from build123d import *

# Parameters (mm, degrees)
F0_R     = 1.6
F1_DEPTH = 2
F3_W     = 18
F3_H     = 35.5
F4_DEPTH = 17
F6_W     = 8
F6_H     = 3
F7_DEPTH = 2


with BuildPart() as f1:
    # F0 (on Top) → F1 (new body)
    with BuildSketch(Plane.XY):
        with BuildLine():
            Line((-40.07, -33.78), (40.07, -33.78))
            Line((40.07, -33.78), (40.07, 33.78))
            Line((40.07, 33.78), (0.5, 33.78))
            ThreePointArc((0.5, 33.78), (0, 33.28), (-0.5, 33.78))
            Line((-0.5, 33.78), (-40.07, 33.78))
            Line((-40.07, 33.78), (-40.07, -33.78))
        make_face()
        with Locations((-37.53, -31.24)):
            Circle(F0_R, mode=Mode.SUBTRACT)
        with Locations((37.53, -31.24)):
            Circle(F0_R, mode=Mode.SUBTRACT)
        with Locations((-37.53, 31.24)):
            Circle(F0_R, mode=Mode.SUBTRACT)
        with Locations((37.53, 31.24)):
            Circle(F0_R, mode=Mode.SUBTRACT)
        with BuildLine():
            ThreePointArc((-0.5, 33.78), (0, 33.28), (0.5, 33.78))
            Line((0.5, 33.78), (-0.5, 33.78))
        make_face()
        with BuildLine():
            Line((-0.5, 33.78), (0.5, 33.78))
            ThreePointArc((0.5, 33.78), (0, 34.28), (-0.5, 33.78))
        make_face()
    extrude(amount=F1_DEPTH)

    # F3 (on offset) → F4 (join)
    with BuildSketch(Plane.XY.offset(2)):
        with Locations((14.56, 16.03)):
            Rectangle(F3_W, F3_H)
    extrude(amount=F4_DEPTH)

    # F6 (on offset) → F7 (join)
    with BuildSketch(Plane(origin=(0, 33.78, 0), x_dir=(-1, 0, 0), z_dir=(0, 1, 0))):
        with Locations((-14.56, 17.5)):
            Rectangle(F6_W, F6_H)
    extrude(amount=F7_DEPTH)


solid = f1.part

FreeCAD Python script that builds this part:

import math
import FreeCAD as App
import Part
import Sketcher
from FreeCAD import Vector
Q = App.Units.Quantity


def add_polygon(sketch, points):
    """Adds a closed chain of lines whose ends are joined by coincident constraints."""
    first, n = sketch.GeometryCount, len(points)
    for a, b in zip(points, points[1:] + points[:1]):
        sketch.addGeometry(Part.LineSegment(App.Vector(*a, 0), App.Vector(*b, 0)), False)
    for i in range(n):
        sketch.addConstraint(Sketcher.Constraint("Coincident", first + i, 2, first + (i + 1) % n, 1))

doc = App.newDocument("Part")
body = doc.addObject("PartDesign::Body", "Body")

sketch1 = body.newObject("Sketcher::SketchObject", "Sketch")
sketch1.AttachmentSupport = (doc.getObject("XY_Plane"), [""])
sketch1.MapMode = "FlatFace"
sketch1.addGeometry([
    Part.LineSegment(Vector(-40.1, -33.8, 0), Vector(40.1, -33.8, 0)),
    Part.LineSegment(Vector(40.1, -33.8, 0), Vector(40.1, 33.8, 0)),
    Part.LineSegment(Vector(40.1, 33.8, 0), Vector(0.5, 33.8, 0)),
    Part.ArcOfCircle(Part.Circle(Vector(0, 33.8, 0), Vector(0, 0, 1), 0.5), math.radians(0), math.radians(180)),
    Part.LineSegment(Vector(-0.5, 33.8, 0), Vector(-40.1, 33.8, 0)),
    Part.LineSegment(Vector(-40.1, 33.8, 0), Vector(-40.1, -33.8, 0)),
    Part.Circle(Vector(-37.5, -31.2, 0), Vector(0, 0, 1), 1.6),
    Part.Circle(Vector(37.5, -31.2, 0), Vector(0, 0, 1), 1.6),
    Part.Circle(Vector(-37.5, 31.2, 0), Vector(0, 0, 1), 1.6),
    Part.Circle(Vector(37.5, 31.2, 0), Vector(0, 0, 1), 1.6),
], False)
sketch1.addConstraint([
    Sketcher.Constraint("Coincident", 0, 2, 1, 1),
    Sketcher.Constraint("Coincident", 1, 2, 2, 1),
    Sketcher.Constraint("Coincident", 2, 2, 3, 1),
    Sketcher.Constraint("Coincident", 3, 2, 4, 1),
    Sketcher.Constraint("Coincident", 4, 2, 5, 1),
    Sketcher.Constraint("Coincident", 5, 2, 0, 1),
    Sketcher.Constraint("Horizontal", 0),
    Sketcher.Constraint("Vertical", 1),
    Sketcher.Constraint("Horizontal", 2),
    Sketcher.Constraint("Horizontal", 4),
    Sketcher.Constraint("Vertical", 5),
    Sketcher.Constraint("Equal", 6, 7),
    Sketcher.Constraint("Equal", 7, 8),
    Sketcher.Constraint("Equal", 8, 9),
    Sketcher.Constraint("Symmetric", 7, 3, 8, 3, -1, 1),
    Sketcher.Constraint("Symmetric", 6, 3, 9, 3, -1, 1),
    Sketcher.Constraint("Symmetric", 0, 2, 4, 2, -1, 1),
    Sketcher.Constraint("Symmetric", 6, 3, 7, 3, -2),
    Sketcher.Constraint("Symmetric", 2, 2, 3, 2, -2),
    Sketcher.Constraint("Horizontal", 3, 3, 1, 2),
    Sketcher.Constraint("Diameter", 6, Q("3.2 mm")),
    Sketcher.Constraint("Radius", 3, Q("0.5 mm")),
    Sketcher.Constraint("DistanceX", 0, 1, 0, 2, Q("80.14 mm")),
    Sketcher.Constraint("DistanceY", 1, 1, 1, 2, Q("67.56 mm")),
    Sketcher.Constraint("DistanceX", 6, 3, 0, 2, Q("77.6 mm")),
    Sketcher.Constraint("DistanceY", 6, 3, -1, 1, Q("31.24 mm")),
])
pad1 = body.newObject("PartDesign::Pad", "Pad")
pad1.Profile = sketch1
pad1.Length = 2

sketch2 = body.newObject("Sketcher::SketchObject", "Sketch001")
sketch2.AttachmentSupport = (doc.getObject("XY_Plane"), [""])
sketch2.MapMode = "FlatFace"
sketch2.AttachmentOffset = App.Placement(Vector(0, 0, 2), App.Rotation())
add_polygon(sketch2, [(6, 34), (6, -2), (24, -2), (24, 34)])
sketch2.addConstraint([
    Sketcher.Constraint("Vertical", 0),
    Sketcher.Constraint("Horizontal", 1),
    Sketcher.Constraint("Vertical", 2),
    Sketcher.Constraint("Horizontal", 3),
    Sketcher.Constraint("DistanceX", 1, 1, 1, 2, Q("18 mm")),
    Sketcher.Constraint("DistanceY", 0, 2, 0, 1, Q("35.5 mm")),
    Sketcher.Constraint("DistanceX", -1, 1, 0, 2, Q("5.56 mm")),
    Sketcher.Constraint("DistanceY", 0, 2, -1, 1, Q("1.72 mm")),
])
pad2 = body.newObject("PartDesign::Pad", "Pad001")
pad2.Profile = sketch2
pad2.Length = 17

sketch3 = body.newObject("Sketcher::SketchObject", "Sketch002")
sketch3.AttachmentSupport = (doc.getObject("XZ_Plane"), [""])
sketch3.MapMode = "FlatFace"
sketch3.AttachmentOffset = App.Placement(Vector(0, 0, -33.78), App.Rotation())
add_polygon(sketch3, [(18.6, 19), (18.6, 16), (10.6, 16), (10.6, 19)])
sketch3.addConstraint([
    Sketcher.Constraint("Vertical", 0),
    Sketcher.Constraint("Horizontal", 1),
    Sketcher.Constraint("Vertical", 2),
    Sketcher.Constraint("Horizontal", 3),
    Sketcher.Constraint("DistanceX", 1, 2, 1, 1, Q("8 mm")),
    Sketcher.Constraint("DistanceY", 0, 2, 0, 1, Q("3 mm")),
    Sketcher.Constraint("DistanceY", -1, 1, 0, 2, Q("16 mm")),
    Sketcher.Constraint("DistanceX", -1, 1, 0, 2, Q("18.56 mm")),
])
pad3 = body.newObject("PartDesign::Pad", "Pad002")
pad3.Profile = sketch3
pad3.Length = 2
pad3.Reversed = True

doc.recompute()
